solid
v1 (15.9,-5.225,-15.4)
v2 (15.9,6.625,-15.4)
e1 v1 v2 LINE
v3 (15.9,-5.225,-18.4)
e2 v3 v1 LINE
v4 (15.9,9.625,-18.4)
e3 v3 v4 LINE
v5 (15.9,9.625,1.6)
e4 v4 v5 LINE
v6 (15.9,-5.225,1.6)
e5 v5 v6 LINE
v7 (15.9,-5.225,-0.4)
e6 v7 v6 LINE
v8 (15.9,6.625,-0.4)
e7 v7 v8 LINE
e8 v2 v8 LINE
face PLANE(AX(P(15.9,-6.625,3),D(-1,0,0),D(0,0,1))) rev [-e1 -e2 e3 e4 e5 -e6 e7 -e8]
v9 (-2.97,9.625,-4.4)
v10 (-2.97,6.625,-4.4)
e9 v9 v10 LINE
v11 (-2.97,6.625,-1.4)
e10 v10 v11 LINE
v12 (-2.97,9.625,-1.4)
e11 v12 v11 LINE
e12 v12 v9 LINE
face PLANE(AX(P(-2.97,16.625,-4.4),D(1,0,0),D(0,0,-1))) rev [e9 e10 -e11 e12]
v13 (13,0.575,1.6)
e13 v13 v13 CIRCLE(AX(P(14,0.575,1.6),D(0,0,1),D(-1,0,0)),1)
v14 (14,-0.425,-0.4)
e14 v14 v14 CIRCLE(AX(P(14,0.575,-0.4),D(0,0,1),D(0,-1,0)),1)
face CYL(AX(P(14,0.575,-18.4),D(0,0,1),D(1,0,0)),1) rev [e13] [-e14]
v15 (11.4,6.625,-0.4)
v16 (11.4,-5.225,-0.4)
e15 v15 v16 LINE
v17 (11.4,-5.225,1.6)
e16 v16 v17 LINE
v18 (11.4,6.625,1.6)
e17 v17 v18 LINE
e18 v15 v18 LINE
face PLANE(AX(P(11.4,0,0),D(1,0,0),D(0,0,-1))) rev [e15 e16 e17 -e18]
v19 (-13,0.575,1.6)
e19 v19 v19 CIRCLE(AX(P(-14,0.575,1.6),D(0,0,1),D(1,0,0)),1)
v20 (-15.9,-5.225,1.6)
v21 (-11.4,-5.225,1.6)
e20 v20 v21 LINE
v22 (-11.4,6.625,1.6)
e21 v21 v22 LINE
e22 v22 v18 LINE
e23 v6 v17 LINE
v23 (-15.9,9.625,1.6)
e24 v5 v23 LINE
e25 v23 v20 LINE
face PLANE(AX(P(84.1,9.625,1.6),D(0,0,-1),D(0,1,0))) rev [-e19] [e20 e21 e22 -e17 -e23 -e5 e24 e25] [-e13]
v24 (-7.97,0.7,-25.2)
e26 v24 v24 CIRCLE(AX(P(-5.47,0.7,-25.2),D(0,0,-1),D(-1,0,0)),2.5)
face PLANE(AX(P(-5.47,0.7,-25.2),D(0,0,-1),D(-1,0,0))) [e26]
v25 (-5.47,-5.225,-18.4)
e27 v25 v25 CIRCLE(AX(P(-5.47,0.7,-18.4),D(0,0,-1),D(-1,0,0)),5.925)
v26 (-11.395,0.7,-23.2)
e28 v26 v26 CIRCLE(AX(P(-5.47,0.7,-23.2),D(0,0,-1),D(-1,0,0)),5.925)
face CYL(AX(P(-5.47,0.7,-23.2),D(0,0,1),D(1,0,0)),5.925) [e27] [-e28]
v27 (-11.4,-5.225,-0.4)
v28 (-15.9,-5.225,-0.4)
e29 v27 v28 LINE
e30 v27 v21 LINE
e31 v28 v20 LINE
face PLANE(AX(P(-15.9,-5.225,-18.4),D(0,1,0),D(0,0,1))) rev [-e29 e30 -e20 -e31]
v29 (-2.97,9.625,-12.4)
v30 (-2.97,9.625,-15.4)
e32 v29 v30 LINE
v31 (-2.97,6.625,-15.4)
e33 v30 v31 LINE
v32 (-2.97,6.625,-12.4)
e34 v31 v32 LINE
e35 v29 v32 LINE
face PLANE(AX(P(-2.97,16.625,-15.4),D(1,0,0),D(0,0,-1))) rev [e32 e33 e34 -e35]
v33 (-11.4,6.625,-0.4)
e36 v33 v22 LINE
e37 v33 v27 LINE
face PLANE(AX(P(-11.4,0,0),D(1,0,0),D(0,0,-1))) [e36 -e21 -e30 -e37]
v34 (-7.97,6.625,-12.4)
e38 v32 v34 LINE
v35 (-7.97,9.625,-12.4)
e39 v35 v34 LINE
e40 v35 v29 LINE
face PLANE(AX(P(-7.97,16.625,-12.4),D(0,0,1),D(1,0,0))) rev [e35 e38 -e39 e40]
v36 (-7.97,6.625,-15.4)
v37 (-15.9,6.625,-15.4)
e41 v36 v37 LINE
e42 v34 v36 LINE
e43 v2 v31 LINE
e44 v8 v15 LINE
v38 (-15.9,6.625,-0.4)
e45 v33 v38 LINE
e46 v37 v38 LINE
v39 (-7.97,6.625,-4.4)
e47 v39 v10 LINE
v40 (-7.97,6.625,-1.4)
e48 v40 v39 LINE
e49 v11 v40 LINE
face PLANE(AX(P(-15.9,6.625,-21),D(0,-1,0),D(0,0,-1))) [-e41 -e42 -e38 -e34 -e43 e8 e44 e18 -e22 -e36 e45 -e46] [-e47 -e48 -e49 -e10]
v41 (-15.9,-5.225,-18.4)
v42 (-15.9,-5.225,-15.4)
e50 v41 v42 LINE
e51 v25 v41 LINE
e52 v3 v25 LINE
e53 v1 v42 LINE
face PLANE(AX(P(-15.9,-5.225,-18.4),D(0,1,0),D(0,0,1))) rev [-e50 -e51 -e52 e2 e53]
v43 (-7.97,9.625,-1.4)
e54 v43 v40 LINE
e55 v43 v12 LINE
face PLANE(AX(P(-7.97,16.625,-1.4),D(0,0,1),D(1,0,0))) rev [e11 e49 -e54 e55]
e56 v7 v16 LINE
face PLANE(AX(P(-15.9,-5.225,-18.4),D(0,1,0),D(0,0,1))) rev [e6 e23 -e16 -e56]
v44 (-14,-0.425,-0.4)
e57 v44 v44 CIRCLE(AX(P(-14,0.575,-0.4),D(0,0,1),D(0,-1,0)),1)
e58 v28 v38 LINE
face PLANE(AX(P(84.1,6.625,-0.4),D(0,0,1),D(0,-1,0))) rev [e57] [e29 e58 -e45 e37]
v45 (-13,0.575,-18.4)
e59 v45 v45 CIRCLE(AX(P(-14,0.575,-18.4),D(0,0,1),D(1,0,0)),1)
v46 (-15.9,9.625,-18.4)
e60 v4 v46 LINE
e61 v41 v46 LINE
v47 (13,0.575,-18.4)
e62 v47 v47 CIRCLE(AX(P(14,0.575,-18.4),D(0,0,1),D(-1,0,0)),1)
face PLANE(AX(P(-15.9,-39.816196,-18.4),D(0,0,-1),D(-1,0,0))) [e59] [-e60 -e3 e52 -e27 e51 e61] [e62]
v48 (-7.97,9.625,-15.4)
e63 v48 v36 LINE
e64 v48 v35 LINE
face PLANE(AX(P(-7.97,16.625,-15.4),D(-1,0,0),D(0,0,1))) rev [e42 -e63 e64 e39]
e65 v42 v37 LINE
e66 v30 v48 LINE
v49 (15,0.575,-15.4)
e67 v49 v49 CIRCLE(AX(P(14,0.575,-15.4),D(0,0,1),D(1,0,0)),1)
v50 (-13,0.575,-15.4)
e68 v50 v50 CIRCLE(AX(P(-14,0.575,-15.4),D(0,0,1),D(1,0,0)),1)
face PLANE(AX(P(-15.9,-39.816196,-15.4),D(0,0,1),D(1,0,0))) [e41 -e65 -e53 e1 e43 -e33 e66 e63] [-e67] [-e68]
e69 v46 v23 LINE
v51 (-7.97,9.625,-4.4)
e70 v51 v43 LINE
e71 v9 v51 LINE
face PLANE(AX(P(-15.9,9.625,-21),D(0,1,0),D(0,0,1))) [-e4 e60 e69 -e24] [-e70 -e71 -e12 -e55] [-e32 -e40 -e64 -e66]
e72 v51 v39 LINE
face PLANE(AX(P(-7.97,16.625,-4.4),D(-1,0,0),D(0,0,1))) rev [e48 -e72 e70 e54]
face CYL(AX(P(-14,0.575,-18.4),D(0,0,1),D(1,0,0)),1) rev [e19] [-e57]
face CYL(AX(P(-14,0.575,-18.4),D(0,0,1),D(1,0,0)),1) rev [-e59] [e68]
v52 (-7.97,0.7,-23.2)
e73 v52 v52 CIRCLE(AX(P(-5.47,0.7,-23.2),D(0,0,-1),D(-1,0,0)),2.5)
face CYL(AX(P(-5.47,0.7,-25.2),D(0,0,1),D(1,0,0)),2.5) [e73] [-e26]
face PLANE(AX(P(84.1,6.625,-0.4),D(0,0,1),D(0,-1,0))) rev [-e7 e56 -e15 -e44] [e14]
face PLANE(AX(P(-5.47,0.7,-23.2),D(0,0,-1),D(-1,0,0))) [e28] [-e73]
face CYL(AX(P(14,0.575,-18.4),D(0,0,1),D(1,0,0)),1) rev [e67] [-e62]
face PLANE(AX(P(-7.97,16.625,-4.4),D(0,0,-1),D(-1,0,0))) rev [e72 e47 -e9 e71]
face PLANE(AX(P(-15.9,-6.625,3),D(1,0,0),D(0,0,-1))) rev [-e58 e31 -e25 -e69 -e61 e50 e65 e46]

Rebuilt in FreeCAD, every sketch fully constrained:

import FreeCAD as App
import Part
import Sketcher
from FreeCAD import Vector

doc = App.newDocument("Part")
params = doc.addObject("Spreadsheet::Sheet", "Params")
for row, (alias, value) in enumerate([
    ("sketch1_width", "31.8 mm"),
    ("sketch1_height", "13.25 mm"),
    ("pad1_length", "3 mm"),
    ("sketch2_height", "3 mm"),
    ("sketch2_width", "31.8 mm"),
    ("pad2_length", "24 mm"),
    ("sketch3_width", "22.8 mm"),
    ("sketch3_height", "13.25 mm"),
    ("pocket1_length", "3 mm"),
    ("sketch4_height", "2 mm"),
    ("sketch4_width", "31.8 mm"),
    ("pad3_length", "13.25 mm"),
    ("sketch5_width", "3 mm"),
    ("sketch5_height", "3.6 mm"),
    ("sketch6_height", "2 mm"),
    ("sketch6_width", "1.25 mm"),
    ("pad4_length", "31.8 mm"),
    ("sketch7_height", "2 mm"),
    ("sketch7_width", "17.5 mm"),
    ("sketch8_height", "3 mm"),
    ("sketch8_width", "1.25 mm"),
    ("pad5_length", "31.8 mm"),
    ("sketch9_width", "22.8 mm"),
    ("sketch9_height", "1.25 mm"),
    ("pocket4_length", "4 mm"),
    ("sketch10_height", "3 mm"),
    ("sketch10_width", "31.8 mm"),
    ("pad6_length", "17.5 mm"),
    ("sketch11_width", "31.8 mm"),
    ("sketch11_width2", "4.5 mm"),
    ("sketch11_height", "17.5 mm"),
    ("sketch11_height2", "14.5 mm"),
    ("pad7_length", "5 mm"),
    ("sketch12_height", "15 mm"),
    ("sketch12_width", "14.5 mm"),
    ("sketch12_width2", "17.5 mm"),
    ("pocket5_length", "100 mm"),
    ("sketch13_diameter", "2 mm"),
    ("sketch13_width", "31.8 mm"),
    ("sketch13_height", "2.65 mm"),
    ("pocket6_length", "20 mm"),
    ("sketch14_diameter", "11.85 mm"),
    ("pad8_length", "4.8 mm"),
    ("sketch15_diameter", "5 mm"),
    ("pad9_length", "2 mm"),
    ("sketch16_width", "5 mm"),
    ("sketch16_height", "3 mm"),
    ("pocket7_length", "10 mm"),
], start=1):
    params.set(f"A{row}", alias)
    params.set(f"B{row}", "=" + value)
    params.setAlias(f"B{row}", alias)

body = doc.addObject("PartDesign::Body", "Body")

sketch1 = body.newObject("Sketcher::SketchObject", "Sketch")
sketch1.AttachmentSupport = (doc.getObject("XY_Plane"), [""])
sketch1.MapMode = "FlatFace"
sketch1.addGeometry(Part.LineSegment(Vector(-15.9, 6.625, 0), Vector(-15.9, -6.625, 0)), False)
sketch1.addGeometry(Part.LineSegment(Vector(-15.9, -6.625, 0), Vector(15.9, -6.625, 0)), False)
sketch1.addGeometry(Part.LineSegment(Vector(15.9, -6.625, 0), Vector(15.9, 6.625, 0)), False)
sketch1.addGeometry(Part.LineSegment(Vector(15.9, 6.625, 0), Vector(-15.9, 6.625, 0)), False)
sketch1.addConstraint(Sketcher.Constraint("Coincident", 0, 2, 1, 1))
sketch1.addConstraint(Sketcher.Constraint("Coincident", 1, 2, 2, 1))
sketch1.addConstraint(Sketcher.Constraint("Coincident", 2, 2, 3, 1))
sketch1.addConstraint(Sketcher.Constraint("Coincident", 3, 2, 0, 1))
sketch1.addConstraint(Sketcher.Constraint("Vertical", 0))
sketch1.addConstraint(Sketcher.Constraint("Horizontal", 1))
sketch1.addConstraint(Sketcher.Constraint("Vertical", 2))
sketch1.addConstraint(Sketcher.Constraint("Horizontal", 3))
sketch1.addConstraint(Sketcher.Constraint("Symmetric", 0, 2, 2, 2, -1, 1))
sketch1.addConstraint(Sketcher.Constraint("DistanceX", 1, 1, 1, 2, 31.8))
sketch1.addConstraint(Sketcher.Constraint("DistanceY", 0, 2, 0, 1, 13.25))
sketch1.setExpression("Constraints[9]", "Params.sketch1_width")
sketch1.setExpression("Constraints[10]", "Params.sketch1_height")
pad1 = body.newObject("PartDesign::Pad", "Pad")
pad1.Profile = sketch1
pad1.setExpression("Length", "Params.pad1_length")

sketch2 = body.newObject("Sketcher::SketchObject", "Sketch001")
sketch2.AttachmentSupport = (doc.getObject("XY_Plane"), [""])
sketch2.MapMode = "FlatFace"
sketch2.AttachmentOffset = App.Placement(Vector(0, 0, 3), App.Rotation())
sketch2.addGeometry(Part.LineSegment(Vector(-15.9, 9.625, 0), Vector(-15.9, 6.625, 0)), False)
sketch2.addGeometry(Part.LineSegment(Vector(-15.9, 6.625, 0), Vector(15.9, 6.625, 0)), False)
sketch2.addGeometry(Part.LineSegment(Vector(15.9, 6.625, 0), Vector(15.9, 9.625, 0)), False)
sketch2.addGeometry(Part.LineSegment(Vector(15.9, 9.625, 0), Vector(-15.9, 9.625, 0)), False)
sketch2.addConstraint(Sketcher.Constraint("Coincident", 0, 2, 1, 1))
sketch2.addConstraint(Sketcher.Constraint("Coincident", 1, 2, 2, 1))
sketch2.addConstraint(Sketcher.Constraint("Coincident", 2, 2, 3, 1))
sketch2.addConstraint(Sketcher.Constraint("Coincident", 3, 2, 0, 1))
sketch2.addConstraint(Sketcher.Constraint("Vertical", 0))
sketch2.addConstraint(Sketcher.Constraint("Horizontal", 1))
sketch2.addConstraint(Sketcher.Constraint("Vertical", 2))
sketch2.addConstraint(Sketcher.Constraint("Horizontal", 3))
sketch2.addConstraint(Sketcher.Constraint("DistanceY", 0, 2, 0, 1, 3.0))
sketch2.addConstraint(Sketcher.Constraint("DistanceX", 1, 1, 1, 2, 31.8))
sketch2.addConstraint(Sketcher.Constraint("DistanceX", 0, 2, -1, 1, 15.9))
sketch2.addConstraint(Sketcher.Constraint("DistanceY", -1, 1, 0, 2, 6.625))
sketch2.setExpression("Constraints[8]", "Params.sketch2_height")
sketch2.setExpression("Constraints[9]", "Params.sketch2_width")
pad2 = body.newObject("PartDesign::Pad", "Pad001")
pad2.Profile = sketch2
pad2.setExpression("Length", "Params.pad2_length")
pad2.Reversed = True

sketch3 = body.newObject("Sketcher::SketchObject", "Sketch002")
sketch3.AttachmentSupport = (doc.getObject("XY_Plane"), [""])
sketch3.MapMode = "FlatFace"
sketch3.AttachmentOffset = App.Placement(Vector(0, 0, 3), App.Rotation())
sketch3.addGeometry(Part.LineSegment(Vector(-11.4, 6.625, 0), Vector(-11.4, -6.625, 0)), False)
sketch3.addGeometry(Part.LineSegment(Vector(-11.4, -6.625, 0), Vector(11.4, -6.625, 0)), False)
sketch3.addGeometry(Part.LineSegment(Vector(11.4, -6.625, 0), Vector(11.4, 6.625, 0)), False)
sketch3.addGeometry(Part.LineSegment(Vector(11.4, 6.625, 0), Vector(-11.4, 6.625, 0)), False)
sketch3.addConstraint(Sketcher.Constraint("Coincident", 0, 2, 1, 1))
sketch3.addConstraint(Sketcher.Constraint("Coincident", 1, 2, 2, 1))
sketch3.addConstraint(Sketcher.Constraint("Coincident", 2, 2, 3, 1))
sketch3.addConstraint(Sketcher.Constraint("Coincident", 3, 2, 0, 1))
sketch3.addConstraint(Sketcher.Constraint("Vertical", 0))
sketch3.addConstraint(Sketcher.Constraint("Horizontal", 1))
sketch3.addConstraint(Sketcher.Constraint("Vertical", 2))
sketch3.addConstraint(Sketcher.Constraint("Horizontal", 3))
sketch3.addConstraint(Sketcher.Constraint("Symmetric", 0, 2, 2, 2, -1, 1))
sketch3.addConstraint(Sketcher.Constraint("DistanceX", 1, 1, 1, 2, 22.8))
sketch3.addConstraint(Sketcher.Constraint("DistanceY", 0, 2, 0, 1, 13.25))
sketch3.setExpression("Constraints[9]", "Params.sketch3_width")
sketch3.setExpression("Constraints[10]", "Params.sketch3_height")
pocket1 = body.newObject("PartDesign::Pocket", "Pocket")
pocket1.Profile = sketch3
pocket1.setExpression("Length", "Params.pocket1_length")

sketch4 = body.newObject("Sketcher::SketchObject", "Sketch003")
sketch4.AttachmentSupport = (doc.getObject("XZ_Plane"), [""])
sketch4.MapMode = "FlatFace"
sketch4.AttachmentOffset = App.Placement(Vector(0, 0, -6.625), App.Rotation())
sketch4.addGeometry(Part.LineSegment(Vector(-15.9, -15.4, 0), Vector(-15.9, -17.4, 0)), False)
sketch4.addGeometry(Part.LineSegment(Vector(-15.9, -17.4, 0), Vector(15.9, -17.4, 0)), False)
sketch4.addGeometry(Part.LineSegment(Vector(15.9, -17.4, 0), Vector(15.9, -15.4, 0)), False)
sketch4.addGeometry(Part.LineSegment(Vector(15.9, -15.4, 0), Vector(-15.9, -15.4, 0)), False)
sketch4.addConstraint(Sketcher.Constraint("Coincident", 0, 2, 1, 1))
sketch4.addConstraint(Sketcher.Constraint("Coincident", 1, 2, 2, 1))
sketch4.addConstraint(Sketcher.Constraint("Coincident", 2, 2, 3, 1))
sketch4.addConstraint(Sketcher.Constraint("Coincident", 3, 2, 0, 1))
sketch4.addConstraint(Sketcher.Constraint("Vertical", 0))
sketch4.addConstraint(Sketcher.Constraint("Horizontal", 1))
sketch4.addConstraint(Sketcher.Constraint("Vertical", 2))
sketch4.addConstraint(Sketcher.Constraint("Horizontal", 3))
sketch4.addConstraint(Sketcher.Constraint("DistanceY", 0, 2, 0, 1, 2.0))
sketch4.addConstraint(Sketcher.Constraint("DistanceX", 1, 1, 1, 2, 31.8))
sketch4.addConstraint(Sketcher.Constraint("DistanceX", 0, 2, -1, 1, 15.9))
sketch4.addConstraint(Sketcher.Constraint("DistanceY", 0, 2, -1, 1, 17.4))
sketch4.setExpression("Constraints[8]", "Params.sketch4_height")
sketch4.setExpression("Constraints[9]", "Params.sketch4_width")
pad3 = body.newObject("PartDesign::Pad", "Pad002")
pad3.Profile = sketch4
pad3.setExpression("Length", "Params.pad3_length")

sketch5 = body.newObject("Sketcher::SketchObject", "Sketch004")
sketch5.AttachmentSupport = (doc.getObject("YZ_Plane"), [""])
sketch5.MapMode = "FlatFace"
sketch5.AttachmentOffset = App.Placement(Vector(0, 0, -15.9), App.Rotation())
sketch5.addGeometry(Part.LineSegment(Vector(9.625, -21, 0), Vector(6.625, -21, 0)), False)
sketch5.addGeometry(Part.LineSegment(Vector(6.625, -21, 0), Vector(6.625, -17.4, 0)), False)
sketch5.addGeometry(Part.LineSegment(Vector(6.625, -17.4, 0), Vector(9.625, -17.4, 0)), False)
sketch5.addGeometry(Part.LineSegment(Vector(9.625, -17.4, 0), Vector(9.625, -21, 0)), False)
sketch5.addConstraint(Sketcher.Constraint("Coincident", 0, 2, 1, 1))
sketch5.addConstraint(Sketcher.Constraint("Coincident", 1, 2, 2, 1))
sketch5.addConstraint(Sketcher.Constraint("Coincident", 2, 2, 3, 1))
sketch5.addConstraint(Sketcher.Constraint("Coincident", 3, 2, 0, 1))
sketch5.addConstraint(Sketcher.Constraint("Horizontal", 0))
sketch5.addConstraint(Sketcher.Constraint("Vertical", 1))
sketch5.addConstraint(Sketcher.Constraint("Horizontal", 2))
sketch5.addConstraint(Sketcher.Constraint("Vertical", 3))
sketch5.addConstraint(Sketcher.Constraint("DistanceX", 0, 2, 0, 1, 3.0))
sketch5.addConstraint(Sketcher.Constraint("DistanceY", 1, 1, 1, 2, 3.6))
sketch5.addConstraint(Sketcher.Constraint("DistanceY", 0, 2, -1, 1, 21.0))
sketch5.addConstraint(Sketcher.Constraint("DistanceX", -1, 1, 0, 2, 6.625))
sketch5.setExpression("Constraints[8]", "Params.sketch5_width")
sketch5.setExpression("Constraints[9]", "Params.sketch5_height")
pocket2 = body.newObject("PartDesign::Pocket", "Pocket001")
pocket2.Profile = sketch5
pocket2.Type = "ThroughAll"
pocket2.Reversed = True

sketch6 = body.newObject("Sketcher::SketchObject", "Sketch005")
sketch6.AttachmentSupport = (doc.getObject("YZ_Plane"), [""])
sketch6.MapMode = "FlatFace"
sketch6.AttachmentOffset = App.Placement(Vector(0, 0, 15.9), App.Rotation())
sketch6.addGeometry(Part.LineSegment(Vector(-6.625, -15.4, 0), Vector(-7.875, -15.4, 0)), False)
sketch6.addGeometry(Part.LineSegment(Vector(-7.875, -15.4, 0), Vector(-7.875, -17.4, 0)), False)
sketch6.addGeometry(Part.LineSegment(Vector(-7.875, -17.4, 0), Vector(-6.625, -17.4, 0)), False)
sketch6.addGeometry(Part.LineSegment(Vector(-6.625, -17.4, 0), Vector(-6.625, -15.4, 0)), False)
sketch6.addConstraint(Sketcher.Constraint("Coincident", 0, 2, 1, 1))
sketch6.addConstraint(Sketcher.Constraint("Coincident", 1, 2, 2, 1))
sketch6.addConstraint(Sketcher.Constraint("Coincident", 2, 2, 3, 1))
sketch6.addConstraint(Sketcher.Constraint("Coincident", 3, 2, 0, 1))
sketch6.addConstraint(Sketcher.Constraint("Horizontal", 0))
sketch6.addConstraint(Sketcher.Constraint("Vertical", 1))
sketch6.addConstraint(Sketcher.Constraint("Horizontal", 2))
sketch6.addConstraint(Sketcher.Constraint("Vertical", 3))
sketch6.addConstraint(Sketcher.Constraint("DistanceY", 1, 2, 1, 1, 2.0))
sketch6.addConstraint(Sketcher.Constraint("DistanceX", 0, 2, 0, 1, 1.25))
sketch6.addConstraint(Sketcher.Constraint("DistanceY", 0, 2, -1, 1, 15.4))
sketch6.addConstraint(Sketcher.Constraint("DistanceX", 0, 2, -1, 1, 7.875))
sketch6.setExpression("Constraints[8]", "Params.sketch6_height")
sketch6.setExpression("Constraints[9]", "Params.sketch6_width")
pad4 = body.newObject("PartDesign::Pad", "Pad003")
pad4.Profile = sketch6
pad4.setExpression("Length", "Params.pad4_length")
pad4.Reversed = True

sketch7 = body.newObject("Sketcher::SketchObject", "Sketch006")
sketch7.AttachmentSupport = (doc.getObject("YZ_Plane"), [""])
sketch7.MapMode = "FlatFace"
sketch7.AttachmentOffset = App.Placement(Vector(0, 0, 15.9), App.Rotation())
sketch7.addGeometry(Part.LineSegment(Vector(9.625, -15.4, 0), Vector(-7.875, -15.4, 0)), False)
sketch7.addGeometry(Part.LineSegment(Vector(-7.875, -15.4, 0), Vector(-7.875, -17.4, 0)), False)
sketch7.addGeometry(Part.LineSegment(Vector(-7.875, -17.4, 0), Vector(9.625, -17.4, 0)), False)
sketch7.addGeometry(Part.LineSegment(Vector(9.625, -17.4, 0), Vector(9.625, -15.4, 0)), False)
sketch7.addConstraint(Sketcher.Constraint("Coincident", 0, 2, 1, 1))
sketch7.addConstraint(Sketcher.Constraint("Coincident", 1, 2, 2, 1))
sketch7.addConstraint(Sketcher.Constraint("Coincident", 2, 2, 3, 1))
sketch7.addConstraint(Sketcher.Constraint("Coincident", 3, 2, 0, 1))
sketch7.addConstraint(Sketcher.Constraint("Horizontal", 0))
sketch7.addConstraint(Sketcher.Constraint("Vertical", 1))
sketch7.addConstraint(Sketcher.Constraint("Horizontal", 2))
sketch7.addConstraint(Sketcher.Constraint("Vertical", 3))
sketch7.addConstraint(Sketcher.Constraint("DistanceY", 1, 2, 1, 1, 2.0))
sketch7.addConstraint(Sketcher.Constraint("DistanceX", 0, 2, 0, 1, 17.5))
sketch7.addConstraint(Sketcher.Constraint("DistanceY", 0, 2, -1, 1, 15.4))
sketch7.addConstraint(Sketcher.Constraint("DistanceX", 0, 2, -1, 1, 7.875))
sketch7.setExpression("Constraints[8]", "Params.sketch7_height")
sketch7.setExpression("Constraints[9]", "Params.sketch7_width")
pocket3 = body.newObject("PartDesign::Pocket", "Pocket002")
pocket3.Profile = sketch7
pocket3.Type = "ThroughAll"

sketch8 = body.newObject("Sketcher::SketchObject", "Sketch007")
sketch8.AttachmentSupport = (doc.getObject("YZ_Plane"), [""])
sketch8.MapMode = "FlatFace"
sketch8.AttachmentOffset = App.Placement(Vector(0, 0, -15.9), App.Rotation())
sketch8.addGeometry(Part.LineSegment(Vector(-6.625, 3, 0), Vector(-7.875, 3, 0)), False)
sketch8.addGeometry(Part.LineSegment(Vector(-7.875, 3, 0), Vector(-7.875, 0, 0)), False)
sketch8.addGeometry(Part.LineSegment(Vector(-7.875, 0, 0), Vector(-6.625, 0, 0)), False)
sketch8.addGeometry(Part.LineSegment(Vector(-6.625, 0, 0), Vector(-6.625, 3, 0)), False)
sketch8.addConstraint(Sketcher.Constraint("Coincident", 0, 2, 1, 1))
sketch8.addConstraint(Sketcher.Constraint("Coincident", 1, 2, 2, 1))
sketch8.addConstraint(Sketcher.Constraint("Coincident", 2, 2, 3, 1))
sketch8.addConstraint(Sketcher.Constraint("Coincident", 3, 2, 0, 1))
sketch8.addConstraint(Sketcher.Constraint("Horizontal", 0))
sketch8.addConstraint(Sketcher.Constraint("Vertical", 1))
sketch8.addConstraint(Sketcher.Constraint("Horizontal", 2))
sketch8.addConstraint(Sketcher.Constraint("Vertical", 3))
sketch8.addConstraint(Sketcher.Constraint("PointOnObject", 1, 2, -1))
sketch8.addConstraint(Sketcher.Constraint("DistanceY", 1, 2, 1, 1, 3.0))
sketch8.addConstraint(Sketcher.Constraint("DistanceX", 0, 2, 0, 1, 1.25))
sketch8.addConstraint(Sketcher.Constraint("DistanceX", 0, 2, -1, 1, 7.875))
sketch8.setExpression("Constraints[9]", "Params.sketch8_height")
sketch8.setExpression("Constraints[10]", "Params.sketch8_width")
pad5 = body.newObject("PartDesign::Pad", "Pad004")
pad5.Profile = sketch8
pad5.setExpression("Length", "Params.pad5_length")
doc.recompute()

mirrored = body.newObject("PartDesign::Mirrored", "Mirrored")
mirrored.Originals = [pad5]
mirrored.MirrorPlane = (doc.getObject("YZ_Plane"), [""])
body.Tip = mirrored

sketch9 = body.newObject("Sketcher::SketchObject", "Sketch008")
sketch9.AttachmentSupport = (doc.getObject("XY_Plane"), [""])
sketch9.MapMode = "FlatFace"
sketch9.AttachmentOffset = App.Placement(Vector(0, 0, 3), App.Rotation())
sketch9.addGeometry(Part.LineSegment(Vector(-11.4, -6.625, 0), Vector(-11.4, -7.875, 0)), False)
sketch9.addGeometry(Part.LineSegment(Vector(-11.4, -7.875, 0), Vector(11.4, -7.875, 0)), False)
sketch9.addGeometry(Part.LineSegment(Vector(11.4, -7.875, 0), Vector(11.4, -6.625, 0)), False)
sketch9.addGeometry(Part.LineSegment(Vector(11.4, -6.625, 0), Vector(-11.4, -6.625, 0)), False)
sketch9.addConstraint(Sketcher.Constraint("Coincident", 0, 2, 1, 1))
sketch9.addConstraint(Sketcher.Constraint("Coincident", 1, 2, 2, 1))
sketch9.addConstraint(Sketcher.Constraint("Coincident", 2, 2, 3, 1))
sketch9.addConstraint(Sketcher.Constraint("Coincident", 3, 2, 0, 1))
sketch9.addConstraint(Sketcher.Constraint("Vertical", 0))
sketch9.addConstraint(Sketcher.Constraint("Horizontal", 1))
sketch9.addConstraint(Sketcher.Constraint("Vertical", 2))
sketch9.addConstraint(Sketcher.Constraint("Horizontal", 3))
sketch9.addConstraint(Sketcher.Constraint("DistanceX", 1, 1, 1, 2, 22.8))
sketch9.addConstraint(Sketcher.Constraint("DistanceY", 0, 2, 0, 1, 1.25))
sketch9.addConstraint(Sketcher.Constraint("DistanceX", 0, 2, -1, 1, 11.4))
sketch9.addConstraint(Sketcher.Constraint("DistanceY", 0, 2, -1, 1, 7.875))
sketch9.setExpression("Constraints[8]", "Params.sketch9_width")
sketch9.setExpression("Constraints[9]", "Params.sketch9_height")
pocket4 = body.newObject("PartDesign::Pocket", "Pocket003")
pocket4.Profile = sketch9
pocket4.setExpression("Length", "Params.pocket4_length")

sketch10 = body.newObject("Sketcher::SketchObject", "Sketch009")
sketch10.AttachmentSupport = (doc.getObject("XZ_Plane"), [""])
sketch10.MapMode = "FlatFace"
sketch10.AttachmentOffset = App.Placement(Vector(0, 0, -9.625), App.Rotation())
sketch10.addGeometry(Part.LineSegment(Vector(-15.9, -18.4, 0), Vector(-15.9, -15.4, 0)), False)
sketch10.addGeometry(Part.LineSegment(Vector(-15.9, -15.4, 0), Vector(15.9, -15.4, 0)), False)
sketch10.addGeometry(Part.LineSegment(Vector(15.9, -15.4, 0), Vector(15.9, -18.4, 0)), False)
sketch10.addGeometry(Part.LineSegment(Vector(15.9, -18.4, 0), Vector(-15.9, -18.4, 0)), False)
sketch10.addConstraint(Sketcher.Constraint("Coincident", 0, 2, 1, 1))
sketch10.addConstraint(Sketcher.Constraint("Coincident", 1, 2, 2, 1))
sketch10.addConstraint(Sketcher.Constraint("Coincident", 2, 2, 3, 1))
sketch10.addConstraint(Sketcher.Constraint("Coincident", 3, 2, 0, 1))
sketch10.addConstraint(Sketcher.Constraint("Vertical", 0))
sketch10.addConstraint(Sketcher.Constraint("Horizontal", 1))
sketch10.addConstraint(Sketcher.Constraint("Vertical", 2))
sketch10.addConstraint(Sketcher.Constraint("Horizontal", 3))
sketch10.addConstraint(Sketcher.Constraint("DistanceY", 0, 1, 0, 2, 3.0))
sketch10.addConstraint(Sketcher.Constraint("DistanceX", 1, 1, 1, 2, 31.8))
sketch10.addConstraint(Sketcher.Constraint("DistanceX", 0, 2, -1, 1, 15.9))
sketch10.addConstraint(Sketcher.Constraint("DistanceY", 0, 2, -1, 1, 15.4))
sketch10.setExpression("Constraints[8]", "Params.sketch10_height")
sketch10.setExpression("Constraints[9]", "Params.sketch10_width")
pad6 = body.newObject("PartDesign::Pad", "Pad005")
pad6.Profile = sketch10
pad6.setExpression("Length", "Params.pad6_length")

sketch11 = body.newObject("Sketcher::SketchObject", "Sketch010")
sketch11.AttachmentSupport = (doc.getObject("XY_Plane"), [""])
sketch11.MapMode = "FlatFace"
sketch11.AttachmentOffset = App.Placement(Vector(0, 0, 3), App.Rotation())
sketch11.addGeometry(Part.LineSegment(Vector(15.9, 9.625, 0), Vector(-15.9, 9.625, 0)), False)
sketch11.addGeometry(Part.LineSegment(Vector(-15.9, 9.625, 0), Vector(-15.9, -7.875, 0)), False)
sketch11.addGeometry(Part.LineSegment(Vector(-15.9, -7.875, 0), Vector(-11.4, -7.875, 0)), False)
sketch11.addGeometry(Part.LineSegment(Vector(-11.4, -7.875, 0), Vector(-11.4, 6.625, 0)), False)
sketch11.addGeometry(Part.LineSegment(Vector(-11.4, 6.625, 0), Vector(11.4, 6.625, 0)), False)
sketch11.addGeometry(Part.LineSegment(Vector(11.4, 6.625, 0), Vector(11.4, -7.875, 0)), False)
sketch11.addGeometry(Part.LineSegment(Vector(11.4, -7.875, 0), Vector(15.9, -7.875, 0)), False)
sketch11.addGeometry(Part.LineSegment(Vector(15.9, -7.875, 0), Vector(15.9, 9.625, 0)), False)
sketch11.addConstraint(Sketcher.Constraint("Coincident", 0, 2, 1, 1))
sketch11.addConstraint(Sketcher.Constraint("Coincident", 1, 2, 2, 1))
sketch11.addConstraint(Sketcher.Constraint("Coincident", 2, 2, 3, 1))
sketch11.addConstraint(Sketcher.Constraint("Coincident", 3, 2, 4, 1))
sketch11.addConstraint(Sketcher.Constraint("Coincident", 4, 2, 5, 1))
sketch11.addConstraint(Sketcher.Constraint("Coincident", 5, 2, 6, 1))
sketch11.addConstraint(Sketcher.Constraint("Coincident", 6, 2, 7, 1))
sketch11.addConstraint(Sketcher.Constraint("Coincident", 7, 2, 0, 1))
sketch11.addConstraint(Sketcher.Constraint("Horizontal", 0))
sketch11.addConstraint(Sketcher.Constraint("Vertical", 1))
sketch11.addConstraint(Sketcher.Constraint("Horizontal", 2))
sketch11.addConstraint(Sketcher.Constraint("Vertical", 3))
sketch11.addConstraint(Sketcher.Constraint("Horizontal", 4))
sketch11.addConstraint(Sketcher.Constraint("Vertical", 5))
sketch11.addConstraint(Sketcher.Constraint("Horizontal", 6))
sketch11.addConstraint(Sketcher.Constraint("Vertical", 7))
sketch11.addConstraint(Sketcher.Constraint("Symmetric", 2, 2, 5, 2, -2))
sketch11.addConstraint(Sketcher.Constraint("Equal", 2, 6))
sketch11.addConstraint(Sketcher.Constraint("DistanceX", 0, 2, 0, 1, 31.8))
sketch11.addConstraint(Sketcher.Constraint("DistanceX", 2, 1, 2, 2, 4.5))
sketch11.addConstraint(Sketcher.Constraint("DistanceY", 1, 2, 1, 1, 17.5))
sketch11.addConstraint(Sketcher.Constraint("DistanceY", 3, 1, 3, 2, 14.5))
sketch11.addConstraint(Sketcher.Constraint("DistanceY", -1, 1, 0, 2, 9.625))
sketch11.setExpression("Constraints[18]", "Params.sketch11_width")
sketch11.setExpression("Constraints[19]", "Params.sketch11_width2")
sketch11.setExpression("Constraints[20]", "Params.sketch11_height")
sketch11.setExpression("Constraints[21]", "Params.sketch11_height2")
pad7 = body.newObject("PartDesign::Pad", "Pad006")
pad7.Profile = sketch11
pad7.setExpression("Length", "Params.pad7_length")
pad7.Reversed = True

sketch12 = body.newObject("Sketcher::SketchObject", "Sketch011")
sketch12.AttachmentSupport = (doc.getObject("YZ_Plane"), [""])
sketch12.MapMode = "FlatFace"
sketch12.AttachmentOffset = App.Placement(Vector(0, 0, -15.9), App.Rotation())
sketch12.addGeometry(Part.LineSegment(Vector(6.625, -15.4, 0), Vector(-7.875, -15.4, 0)), False)
sketch12.addGeometry(Part.LineSegment(Vector(-7.875, -15.4, 0), Vector(-7.875, -0.4, 0)), False)
sketch12.addGeometry(Part.LineSegment(Vector(-7.875, -0.4, 0), Vector(6.625, -0.4, 0)), False)
sketch12.addGeometry(Part.LineSegment(Vector(6.625, -0.4, 0), Vector(6.625, -15.4, 0)), False)
sketch12.addGeometry(Part.LineSegment(Vector(9.625, 1.6, 0), Vector(-7.875, 1.6, 0)), False)
sketch12.addGeometry(Part.LineSegment(Vector(-7.875, 1.6, 0), Vector(-7.875, 6.830603, 0)), False)
sketch12.addGeometry(Part.LineSegment(Vector(-7.875, 6.830603, 0), Vector(9.625, 6.830603, 0)), False)
sketch12.addGeometry(Part.LineSegment(Vector(9.625, 6.830603, 0), Vector(9.625, 1.6, 0)), False)
sketch12.addConstraint(Sketcher.Constraint("Coincident", 0, 2, 1, 1))
sketch12.addConstraint(Sketcher.Constraint("Coincident", 1, 2, 2, 1))
sketch12.addConstraint(Sketcher.Constraint("Coincident", 2, 2, 3, 1))
sketch12.addConstraint(Sketcher.Constraint("Coincident", 3, 2, 0, 1))
sketch12.addConstraint(Sketcher.Constraint("Coincident", 4, 2, 5, 1))
sketch12.addConstraint(Sketcher.Constraint("Coincident", 5, 2, 6, 1))
sketch12.addConstraint(Sketcher.Constraint("Coincident", 6, 2, 7, 1))
sketch12.addConstraint(Sketcher.Constraint("Coincident", 7, 2, 4, 1))
sketch12.addConstraint(Sketcher.Constraint("Horizontal", 0))
sketch12.addConstraint(Sketcher.Constraint("Vertical", 1))
sketch12.addConstraint(Sketcher.Constraint("Horizontal", 2))
sketch12.addConstraint(Sketcher.Constraint("Vertical", 3))
sketch12.addConstraint(Sketcher.Constraint("Horizontal", 4))
sketch12.addConstraint(Sketcher.Constraint("Vertical", 5))
sketch12.addConstraint(Sketcher.Constraint("Horizontal", 6))
sketch12.addConstraint(Sketcher.Constraint("Vertical", 7))
sketch12.addConstraint(Sketcher.Constraint("Vertical", 1, 2, 4, 2))
sketch12.addConstraint(Sketcher.Constraint("DistanceY", 1, 1, 1, 2, 15.0))
sketch12.addConstraint(Sketcher.Constraint("DistanceX", 0, 2, 0, 1, 14.5))
sketch12.addConstraint(Sketcher.Constraint("DistanceX", 4, 2, 4, 1, 17.5))
sketch12.addConstraint(Sketcher.Constraint("DistanceY", 1, 2, 4, 2, 2.0))
sketch12.addConstraint(Sketcher.Constraint("DistanceY", 0, 2, -1, 1, 15.4))
sketch12.addConstraint(Sketcher.Constraint("DistanceX", 0, 2, -1, 1, 7.875))
sketch12.addConstraint(Sketcher.Constraint("DistanceY", 5, 1, 5, 2, 5.230603))
sketch12.setExpression("Constraints[17]", "Params.sketch12_height")
sketch12.setExpression("Constraints[18]", "Params.sketch12_width")
sketch12.setExpression("Constraints[19]", "Params.sketch12_width2")
pocket5 = body.newObject("PartDesign::Pocket", "Pocket004")
pocket5.Profile = sketch12
pocket5.setExpression("Length", "Params.pocket5_length")
pocket5.Reversed = True

sketch13 = body.newObject("Sketcher::SketchObject", "Sketch012")
sketch13.AttachmentSupport = (doc.getObject("XY_Plane"), [""])
sketch13.MapMode = "FlatFace"
sketch13.AttachmentOffset = App.Placement(Vector(0, 0, 1.6), App.Rotation())
sketch13.addGeometry(Part.Circle(Vector(-14, 0.575, 0), Vector(0, 0, 1), 1), False)
sketch13.addGeometry(Part.Circle(Vector(14, 0.575, 0), Vector(0, 0, 1), 1), False)
sketch13.addGeometry(Part.LineSegment(Vector(-15.9, -5.225, 0), Vector(-15.9, -7.875, 0)), False)
sketch13.addGeometry(Part.LineSegment(Vector(-15.9, -7.875, 0), Vector(15.9, -7.875, 0)), False)
sketch13.addGeometry(Part.LineSegment(Vector(15.9, -7.875, 0), Vector(15.9, -5.225, 0)), False)
sketch13.addGeometry(Part.LineSegment(Vector(15.9, -5.225, 0), Vector(-15.9, -5.225, 0)), False)
sketch13.addConstraint(Sketcher.Constraint("Coincident", 2, 2, 3, 1))
sketch13.addConstraint(Sketcher.Constraint("Coincident", 3, 2, 4, 1))
sketch13.addConstraint(Sketcher.Constraint("Coincident", 4, 2, 5, 1))
sketch13.addConstraint(Sketcher.Constraint("Coincident", 5, 2, 2, 1))
sketch13.addConstraint(Sketcher.Constraint("Vertical", 2))
sketch13.addConstraint(Sketcher.Constraint("Horizontal", 3))
sketch13.addConstraint(Sketcher.Constraint("Vertical", 4))
sketch13.addConstraint(Sketcher.Constraint("Horizontal", 5))
sketch13.addConstraint(Sketcher.Constraint("Equal", 0, 1))
sketch13.addConstraint(Sketcher.Constraint("Symmetric", 0, 3, 1, 3, -2))
sketch13.addConstraint(Sketcher.Constraint("Diameter", 0, 2.0))
sketch13.addConstraint(Sketcher.Constraint("DistanceX", 3, 1, 3, 2, 31.8))
sketch13.addConstraint(Sketcher.Constraint("DistanceX", 0, 3, -1, 1, 14.0))
sketch13.addConstraint(Sketcher.Constraint("DistanceY", 2, 2, 2, 1, 2.65))
sketch13.addConstraint(Sketcher.Constraint("DistanceX", 2, 2, -1, 1, 15.9))
sketch13.addConstraint(Sketcher.Constraint("DistanceY", 4, 2, 1, 3, 5.8))
sketch13.addConstraint(Sketcher.Constraint("DistanceY", -1, 1, 0, 3, 0.575))
sketch13.setExpression("Constraints[10]", "Params.sketch13_diameter")
sketch13.setExpression("Constraints[11]", "Params.sketch13_width")
sketch13.setExpression("Constraints[13]", "Params.sketch13_height")
pocket6 = body.newObject("PartDesign::Pocket", "Pocket005")
pocket6.Profile = sketch13
pocket6.setExpression("Length", "Params.pocket6_length")

sketch14 = body.newObject("Sketcher::SketchObject", "Sketch013")
sketch14.AttachmentSupport = (doc.getObject("XY_Plane"), [""])
sketch14.MapMode = "FlatFace"
sketch14.AttachmentOffset = App.Placement(Vector(0, 0, -18.4), App.Rotation())
sketch14.addGeometry(Part.Circle(Vector(-5.47, 0.7, 0), Vector(0, 0, 1), 5.925), False)
sketch14.addConstraint(Sketcher.Constraint("Diameter", 0, 11.85))
sketch14.addConstraint(Sketcher.Constraint("DistanceY", -1, 1, 0, 3, 0.7))
sketch14.addConstraint(Sketcher.Constraint("DistanceX", 0, 3, -1, 1, 5.47))
sketch14.setExpression("Constraints[0]", "Params.sketch14_diameter")
pad8 = body.newObject("PartDesign::Pad", "Pad007")
pad8.Profile = sketch14
pad8.setExpression("Length", "Params.pad8_length")
pad8.Reversed = True

sketch15 = body.newObject("Sketcher::SketchObject", "Sketch014")
sketch15.AttachmentSupport = (doc.getObject("XY_Plane"), [""])
sketch15.MapMode = "FlatFace"
sketch15.AttachmentOffset = App.Placement(Vector(0, 0, -23.2), App.Rotation())
sketch15.addGeometry(Part.Circle(Vector(-5.47, 0.7, 0), Vector(0, 0, 1), 2.5), False)
sketch15.addConstraint(Sketcher.Constraint("Diameter", 0, 5.0))
sketch15.addConstraint(Sketcher.Constraint("DistanceY", -1, 1, 0, 3, 0.7))
sketch15.addConstraint(Sketcher.Constraint("DistanceX", 0, 3, -1, 1, 5.47))
sketch15.setExpression("Constraints[0]", "Params.sketch15_diameter")
pad9 = body.newObject("PartDesign::Pad", "Pad008")
pad9.Profile = sketch15
pad9.setExpression("Length", "Params.pad9_length")
pad9.Reversed = True

sketch16 = body.newObject("Sketcher::SketchObject", "Sketch015")
sketch16.AttachmentSupport = (doc.getObject("XZ_Plane"), [""])
sketch16.MapMode = "FlatFace"
sketch16.AttachmentOffset = App.Placement(Vector(0, 0, -6.625), App.Rotation())
sketch16.addGeometry(Part.LineSegment(Vector(-7.97, -12.4, 0), Vector(-7.97, -15.4, 0)), False)
sketch16.addGeometry(Part.LineSegment(Vector(-7.97, -15.4, 0), Vector(-2.97, -15.4, 0)), False)
sketch16.addGeometry(Part.LineSegment(Vector(-2.97, -15.4, 0), Vector(-2.97, -12.4, 0)), False)
sketch16.addGeometry(Part.LineSegment(Vector(-2.97, -12.4, 0), Vector(-7.97, -12.4, 0)), False)
sketch16.addGeometry(Part.LineSegment(Vector(-7.97, -1.4, 0), Vector(-7.97, -4.4, 0)), False)
sketch16.addGeometry(Part.LineSegment(Vector(-7.97, -4.4, 0), Vector(-2.97, -4.4, 0)), False)
sketch16.addGeometry(Part.LineSegment(Vector(-2.97, -4.4, 0), Vector(-2.97, -1.4, 0)), False)
sketch16.addGeometry(Part.LineSegment(Vector(-2.97, -1.4, 0), Vector(-7.97, -1.4, 0)), False)
sketch16.addConstraint(Sketcher.Constraint("Coincident", 0, 2, 1, 1))
sketch16.addConstraint(Sketcher.Constraint("Coincident", 1, 2, 2, 1))
sketch16.addConstraint(Sketcher.Constraint("Coincident", 2, 2, 3, 1))
sketch16.addConstraint(Sketcher.Constraint("Coincident", 3, 2, 0, 1))
sketch16.addConstraint(Sketcher.Constraint("Coincident", 4, 2, 5, 1))
sketch16.addConstraint(Sketcher.Constraint("Coincident", 5, 2, 6, 1))
sketch16.addConstraint(Sketcher.Constraint("Coincident", 6, 2, 7, 1))
sketch16.addConstraint(Sketcher.Constraint("Coincident", 7, 2, 4, 1))
sketch16.addConstraint(Sketcher.Constraint("Vertical", 0))
sketch16.addConstraint(Sketcher.Constraint("Horizontal", 1))
sketch16.addConstraint(Sketcher.Constraint("Vertical", 2))
sketch16.addConstraint(Sketcher.Constraint("Horizontal", 3))
sketch16.addConstraint(Sketcher.Constraint("Vertical", 4))
sketch16.addConstraint(Sketcher.Constraint("Horizontal", 5))
sketch16.addConstraint(Sketcher.Constraint("Vertical", 6))
sketch16.addConstraint(Sketcher.Constraint("Horizontal", 7))
sketch16.addConstraint(Sketcher.Constraint("Vertical", 3, 2, 4, 2))
sketch16.addConstraint(Sketcher.Constraint("Vertical", 2, 2, 5, 2))
sketch16.addConstraint(Sketcher.Constraint("Equal", 2, 4))
sketch16.addConstraint(Sketcher.Constraint("DistanceX", 1, 1, 1, 2, 5.0))
sketch16.addConstraint(Sketcher.Constraint("DistanceY", 0, 2, 0, 1, 3.0))
sketch16.addConstraint(Sketcher.Constraint("DistanceY", 3, 2, 4, 2, 8.0))
sketch16.addConstraint(Sketcher.Constraint("DistanceY", 0, 2, -1, 1, 15.4))
sketch16.addConstraint(Sketcher.Constraint("DistanceX", 0, 2, -1, 1, 7.97))
sketch16.setExpression("Constraints[19]", "Params.sketch16_width")
sketch16.setExpression("Constraints[20]", "Params.sketch16_height")
pocket7 = body.newObject("PartDesign::Pocket", "Pocket006")
pocket7.Profile = sketch16
pocket7.setExpression("Length", "Params.pocket7_length")

doc.recompute()
